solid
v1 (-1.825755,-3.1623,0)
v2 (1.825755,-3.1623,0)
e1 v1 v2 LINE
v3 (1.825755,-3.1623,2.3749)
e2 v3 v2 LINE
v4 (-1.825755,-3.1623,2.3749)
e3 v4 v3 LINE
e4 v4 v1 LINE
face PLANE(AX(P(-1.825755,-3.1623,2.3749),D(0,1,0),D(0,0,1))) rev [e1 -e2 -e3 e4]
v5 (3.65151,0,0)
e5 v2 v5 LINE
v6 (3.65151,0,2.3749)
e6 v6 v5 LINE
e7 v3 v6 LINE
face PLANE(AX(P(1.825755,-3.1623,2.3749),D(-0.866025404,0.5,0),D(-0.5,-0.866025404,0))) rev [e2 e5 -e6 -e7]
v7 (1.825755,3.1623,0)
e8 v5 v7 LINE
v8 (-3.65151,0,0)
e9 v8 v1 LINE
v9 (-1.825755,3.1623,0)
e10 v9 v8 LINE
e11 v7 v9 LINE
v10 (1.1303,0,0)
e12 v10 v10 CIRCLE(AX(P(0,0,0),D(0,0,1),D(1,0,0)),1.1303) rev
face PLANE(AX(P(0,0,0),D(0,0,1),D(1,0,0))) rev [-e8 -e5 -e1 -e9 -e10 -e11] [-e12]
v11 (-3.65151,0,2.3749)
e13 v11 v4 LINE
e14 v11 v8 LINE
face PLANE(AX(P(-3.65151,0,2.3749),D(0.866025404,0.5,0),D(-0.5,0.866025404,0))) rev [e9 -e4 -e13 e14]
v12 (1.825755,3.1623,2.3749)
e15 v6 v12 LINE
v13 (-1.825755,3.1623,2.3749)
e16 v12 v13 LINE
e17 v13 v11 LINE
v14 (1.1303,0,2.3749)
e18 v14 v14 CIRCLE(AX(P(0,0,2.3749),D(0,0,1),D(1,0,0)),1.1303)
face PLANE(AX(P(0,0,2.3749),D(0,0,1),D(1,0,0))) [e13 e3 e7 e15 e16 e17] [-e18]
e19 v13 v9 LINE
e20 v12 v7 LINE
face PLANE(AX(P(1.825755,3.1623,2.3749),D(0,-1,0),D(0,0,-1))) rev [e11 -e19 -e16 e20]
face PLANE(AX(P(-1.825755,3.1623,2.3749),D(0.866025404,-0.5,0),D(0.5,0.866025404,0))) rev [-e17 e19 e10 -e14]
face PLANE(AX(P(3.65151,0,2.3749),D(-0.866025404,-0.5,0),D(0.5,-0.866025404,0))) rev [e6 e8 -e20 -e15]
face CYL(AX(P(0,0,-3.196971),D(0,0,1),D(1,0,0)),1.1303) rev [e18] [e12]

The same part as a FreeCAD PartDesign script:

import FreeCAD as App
import Part
import Sketcher

V = App.Vector
Q = App.Units.Quantity


def add_polygon(sketch, points):
    """Adds a closed chain of lines whose ends are joined by coincident constraints."""
    first, n = sketch.GeometryCount, len(points)
    for a, b in zip(points, points[1:] + points[:1]):
        sketch.addGeometry(Part.LineSegment(App.Vector(*a, 0), App.Vector(*b, 0)), False)
    for i in range(n):
        sketch.addConstraint(Sketcher.Constraint("Coincident", first + i, 2, first + (i + 1) % n, 1))

doc = App.newDocument("Part")
body = doc.addObject("PartDesign::Body", "Body")

sketch1 = body.newObject("Sketcher::SketchObject", "Sketch")
sketch1.AttachmentSupport = (doc.getObject("XY_Plane"), [""])
sketch1.MapMode = "FlatFace"
add_polygon(sketch1, [(3.65151, 0), (1.825755, 3.1623), (-1.825755, 3.1623), (-3.65151, 0), (-1.825755, -3.1623), (1.825755, -3.1623)])
sketch1.addConstraint([
    Sketcher.Constraint("Horizontal", 1),
    Sketcher.Constraint("Horizontal", 4),
    Sketcher.Constraint("Symmetric", 0, 2, 3, 2, -1, 1),
    Sketcher.Constraint("Symmetric", 2, 2, 5, 2, -1, 1),
    Sketcher.Constraint("PointOnObject", 2, 2, -1),
    Sketcher.Constraint("Parallel", 2, 5),
    Sketcher.Constraint("Vertical", 1, 2, 3, 2),
    Sketcher.Constraint("Angle", 0, Q("120 deg")),
    Sketcher.Constraint("DistanceY", 3, 2, 1, 2, Q("0.249 in")),
    Sketcher.Constraint("DistanceX", 1, 2, 1, 1, Q("3.65151 mm")),
])
pad1 = body.newObject("PartDesign::Pad", "Pad")
pad1.Profile = sketch1
pad1.Length = Q("0.0935 in")

sketch2 = body.newObject("Sketcher::SketchObject", "Sketch001")
sketch2.AttachmentSupport = (doc.getObject("XY_Plane"), [""])
sketch2.MapMode = "FlatFace"
sketch2.AttachmentOffset = App.Placement(V(0, 0, 0.0935 * 25.4), App.Rotation())
sketch2.addGeometry(Part.Circle(V(0, 0, 0), V(0, 0, 1), 1.1303), False)
sketch2.addConstraint([
    Sketcher.Constraint("Coincident", 0, 3, -1, 1),
    Sketcher.Constraint("Diameter", 0, Q("0.089 in")),
])
pocket1 = body.newObject("PartDesign::Pocket", "Pocket")
pocket1.Profile = sketch2
pocket1.Length = Q("0.0935 in")

doc.recompute()
